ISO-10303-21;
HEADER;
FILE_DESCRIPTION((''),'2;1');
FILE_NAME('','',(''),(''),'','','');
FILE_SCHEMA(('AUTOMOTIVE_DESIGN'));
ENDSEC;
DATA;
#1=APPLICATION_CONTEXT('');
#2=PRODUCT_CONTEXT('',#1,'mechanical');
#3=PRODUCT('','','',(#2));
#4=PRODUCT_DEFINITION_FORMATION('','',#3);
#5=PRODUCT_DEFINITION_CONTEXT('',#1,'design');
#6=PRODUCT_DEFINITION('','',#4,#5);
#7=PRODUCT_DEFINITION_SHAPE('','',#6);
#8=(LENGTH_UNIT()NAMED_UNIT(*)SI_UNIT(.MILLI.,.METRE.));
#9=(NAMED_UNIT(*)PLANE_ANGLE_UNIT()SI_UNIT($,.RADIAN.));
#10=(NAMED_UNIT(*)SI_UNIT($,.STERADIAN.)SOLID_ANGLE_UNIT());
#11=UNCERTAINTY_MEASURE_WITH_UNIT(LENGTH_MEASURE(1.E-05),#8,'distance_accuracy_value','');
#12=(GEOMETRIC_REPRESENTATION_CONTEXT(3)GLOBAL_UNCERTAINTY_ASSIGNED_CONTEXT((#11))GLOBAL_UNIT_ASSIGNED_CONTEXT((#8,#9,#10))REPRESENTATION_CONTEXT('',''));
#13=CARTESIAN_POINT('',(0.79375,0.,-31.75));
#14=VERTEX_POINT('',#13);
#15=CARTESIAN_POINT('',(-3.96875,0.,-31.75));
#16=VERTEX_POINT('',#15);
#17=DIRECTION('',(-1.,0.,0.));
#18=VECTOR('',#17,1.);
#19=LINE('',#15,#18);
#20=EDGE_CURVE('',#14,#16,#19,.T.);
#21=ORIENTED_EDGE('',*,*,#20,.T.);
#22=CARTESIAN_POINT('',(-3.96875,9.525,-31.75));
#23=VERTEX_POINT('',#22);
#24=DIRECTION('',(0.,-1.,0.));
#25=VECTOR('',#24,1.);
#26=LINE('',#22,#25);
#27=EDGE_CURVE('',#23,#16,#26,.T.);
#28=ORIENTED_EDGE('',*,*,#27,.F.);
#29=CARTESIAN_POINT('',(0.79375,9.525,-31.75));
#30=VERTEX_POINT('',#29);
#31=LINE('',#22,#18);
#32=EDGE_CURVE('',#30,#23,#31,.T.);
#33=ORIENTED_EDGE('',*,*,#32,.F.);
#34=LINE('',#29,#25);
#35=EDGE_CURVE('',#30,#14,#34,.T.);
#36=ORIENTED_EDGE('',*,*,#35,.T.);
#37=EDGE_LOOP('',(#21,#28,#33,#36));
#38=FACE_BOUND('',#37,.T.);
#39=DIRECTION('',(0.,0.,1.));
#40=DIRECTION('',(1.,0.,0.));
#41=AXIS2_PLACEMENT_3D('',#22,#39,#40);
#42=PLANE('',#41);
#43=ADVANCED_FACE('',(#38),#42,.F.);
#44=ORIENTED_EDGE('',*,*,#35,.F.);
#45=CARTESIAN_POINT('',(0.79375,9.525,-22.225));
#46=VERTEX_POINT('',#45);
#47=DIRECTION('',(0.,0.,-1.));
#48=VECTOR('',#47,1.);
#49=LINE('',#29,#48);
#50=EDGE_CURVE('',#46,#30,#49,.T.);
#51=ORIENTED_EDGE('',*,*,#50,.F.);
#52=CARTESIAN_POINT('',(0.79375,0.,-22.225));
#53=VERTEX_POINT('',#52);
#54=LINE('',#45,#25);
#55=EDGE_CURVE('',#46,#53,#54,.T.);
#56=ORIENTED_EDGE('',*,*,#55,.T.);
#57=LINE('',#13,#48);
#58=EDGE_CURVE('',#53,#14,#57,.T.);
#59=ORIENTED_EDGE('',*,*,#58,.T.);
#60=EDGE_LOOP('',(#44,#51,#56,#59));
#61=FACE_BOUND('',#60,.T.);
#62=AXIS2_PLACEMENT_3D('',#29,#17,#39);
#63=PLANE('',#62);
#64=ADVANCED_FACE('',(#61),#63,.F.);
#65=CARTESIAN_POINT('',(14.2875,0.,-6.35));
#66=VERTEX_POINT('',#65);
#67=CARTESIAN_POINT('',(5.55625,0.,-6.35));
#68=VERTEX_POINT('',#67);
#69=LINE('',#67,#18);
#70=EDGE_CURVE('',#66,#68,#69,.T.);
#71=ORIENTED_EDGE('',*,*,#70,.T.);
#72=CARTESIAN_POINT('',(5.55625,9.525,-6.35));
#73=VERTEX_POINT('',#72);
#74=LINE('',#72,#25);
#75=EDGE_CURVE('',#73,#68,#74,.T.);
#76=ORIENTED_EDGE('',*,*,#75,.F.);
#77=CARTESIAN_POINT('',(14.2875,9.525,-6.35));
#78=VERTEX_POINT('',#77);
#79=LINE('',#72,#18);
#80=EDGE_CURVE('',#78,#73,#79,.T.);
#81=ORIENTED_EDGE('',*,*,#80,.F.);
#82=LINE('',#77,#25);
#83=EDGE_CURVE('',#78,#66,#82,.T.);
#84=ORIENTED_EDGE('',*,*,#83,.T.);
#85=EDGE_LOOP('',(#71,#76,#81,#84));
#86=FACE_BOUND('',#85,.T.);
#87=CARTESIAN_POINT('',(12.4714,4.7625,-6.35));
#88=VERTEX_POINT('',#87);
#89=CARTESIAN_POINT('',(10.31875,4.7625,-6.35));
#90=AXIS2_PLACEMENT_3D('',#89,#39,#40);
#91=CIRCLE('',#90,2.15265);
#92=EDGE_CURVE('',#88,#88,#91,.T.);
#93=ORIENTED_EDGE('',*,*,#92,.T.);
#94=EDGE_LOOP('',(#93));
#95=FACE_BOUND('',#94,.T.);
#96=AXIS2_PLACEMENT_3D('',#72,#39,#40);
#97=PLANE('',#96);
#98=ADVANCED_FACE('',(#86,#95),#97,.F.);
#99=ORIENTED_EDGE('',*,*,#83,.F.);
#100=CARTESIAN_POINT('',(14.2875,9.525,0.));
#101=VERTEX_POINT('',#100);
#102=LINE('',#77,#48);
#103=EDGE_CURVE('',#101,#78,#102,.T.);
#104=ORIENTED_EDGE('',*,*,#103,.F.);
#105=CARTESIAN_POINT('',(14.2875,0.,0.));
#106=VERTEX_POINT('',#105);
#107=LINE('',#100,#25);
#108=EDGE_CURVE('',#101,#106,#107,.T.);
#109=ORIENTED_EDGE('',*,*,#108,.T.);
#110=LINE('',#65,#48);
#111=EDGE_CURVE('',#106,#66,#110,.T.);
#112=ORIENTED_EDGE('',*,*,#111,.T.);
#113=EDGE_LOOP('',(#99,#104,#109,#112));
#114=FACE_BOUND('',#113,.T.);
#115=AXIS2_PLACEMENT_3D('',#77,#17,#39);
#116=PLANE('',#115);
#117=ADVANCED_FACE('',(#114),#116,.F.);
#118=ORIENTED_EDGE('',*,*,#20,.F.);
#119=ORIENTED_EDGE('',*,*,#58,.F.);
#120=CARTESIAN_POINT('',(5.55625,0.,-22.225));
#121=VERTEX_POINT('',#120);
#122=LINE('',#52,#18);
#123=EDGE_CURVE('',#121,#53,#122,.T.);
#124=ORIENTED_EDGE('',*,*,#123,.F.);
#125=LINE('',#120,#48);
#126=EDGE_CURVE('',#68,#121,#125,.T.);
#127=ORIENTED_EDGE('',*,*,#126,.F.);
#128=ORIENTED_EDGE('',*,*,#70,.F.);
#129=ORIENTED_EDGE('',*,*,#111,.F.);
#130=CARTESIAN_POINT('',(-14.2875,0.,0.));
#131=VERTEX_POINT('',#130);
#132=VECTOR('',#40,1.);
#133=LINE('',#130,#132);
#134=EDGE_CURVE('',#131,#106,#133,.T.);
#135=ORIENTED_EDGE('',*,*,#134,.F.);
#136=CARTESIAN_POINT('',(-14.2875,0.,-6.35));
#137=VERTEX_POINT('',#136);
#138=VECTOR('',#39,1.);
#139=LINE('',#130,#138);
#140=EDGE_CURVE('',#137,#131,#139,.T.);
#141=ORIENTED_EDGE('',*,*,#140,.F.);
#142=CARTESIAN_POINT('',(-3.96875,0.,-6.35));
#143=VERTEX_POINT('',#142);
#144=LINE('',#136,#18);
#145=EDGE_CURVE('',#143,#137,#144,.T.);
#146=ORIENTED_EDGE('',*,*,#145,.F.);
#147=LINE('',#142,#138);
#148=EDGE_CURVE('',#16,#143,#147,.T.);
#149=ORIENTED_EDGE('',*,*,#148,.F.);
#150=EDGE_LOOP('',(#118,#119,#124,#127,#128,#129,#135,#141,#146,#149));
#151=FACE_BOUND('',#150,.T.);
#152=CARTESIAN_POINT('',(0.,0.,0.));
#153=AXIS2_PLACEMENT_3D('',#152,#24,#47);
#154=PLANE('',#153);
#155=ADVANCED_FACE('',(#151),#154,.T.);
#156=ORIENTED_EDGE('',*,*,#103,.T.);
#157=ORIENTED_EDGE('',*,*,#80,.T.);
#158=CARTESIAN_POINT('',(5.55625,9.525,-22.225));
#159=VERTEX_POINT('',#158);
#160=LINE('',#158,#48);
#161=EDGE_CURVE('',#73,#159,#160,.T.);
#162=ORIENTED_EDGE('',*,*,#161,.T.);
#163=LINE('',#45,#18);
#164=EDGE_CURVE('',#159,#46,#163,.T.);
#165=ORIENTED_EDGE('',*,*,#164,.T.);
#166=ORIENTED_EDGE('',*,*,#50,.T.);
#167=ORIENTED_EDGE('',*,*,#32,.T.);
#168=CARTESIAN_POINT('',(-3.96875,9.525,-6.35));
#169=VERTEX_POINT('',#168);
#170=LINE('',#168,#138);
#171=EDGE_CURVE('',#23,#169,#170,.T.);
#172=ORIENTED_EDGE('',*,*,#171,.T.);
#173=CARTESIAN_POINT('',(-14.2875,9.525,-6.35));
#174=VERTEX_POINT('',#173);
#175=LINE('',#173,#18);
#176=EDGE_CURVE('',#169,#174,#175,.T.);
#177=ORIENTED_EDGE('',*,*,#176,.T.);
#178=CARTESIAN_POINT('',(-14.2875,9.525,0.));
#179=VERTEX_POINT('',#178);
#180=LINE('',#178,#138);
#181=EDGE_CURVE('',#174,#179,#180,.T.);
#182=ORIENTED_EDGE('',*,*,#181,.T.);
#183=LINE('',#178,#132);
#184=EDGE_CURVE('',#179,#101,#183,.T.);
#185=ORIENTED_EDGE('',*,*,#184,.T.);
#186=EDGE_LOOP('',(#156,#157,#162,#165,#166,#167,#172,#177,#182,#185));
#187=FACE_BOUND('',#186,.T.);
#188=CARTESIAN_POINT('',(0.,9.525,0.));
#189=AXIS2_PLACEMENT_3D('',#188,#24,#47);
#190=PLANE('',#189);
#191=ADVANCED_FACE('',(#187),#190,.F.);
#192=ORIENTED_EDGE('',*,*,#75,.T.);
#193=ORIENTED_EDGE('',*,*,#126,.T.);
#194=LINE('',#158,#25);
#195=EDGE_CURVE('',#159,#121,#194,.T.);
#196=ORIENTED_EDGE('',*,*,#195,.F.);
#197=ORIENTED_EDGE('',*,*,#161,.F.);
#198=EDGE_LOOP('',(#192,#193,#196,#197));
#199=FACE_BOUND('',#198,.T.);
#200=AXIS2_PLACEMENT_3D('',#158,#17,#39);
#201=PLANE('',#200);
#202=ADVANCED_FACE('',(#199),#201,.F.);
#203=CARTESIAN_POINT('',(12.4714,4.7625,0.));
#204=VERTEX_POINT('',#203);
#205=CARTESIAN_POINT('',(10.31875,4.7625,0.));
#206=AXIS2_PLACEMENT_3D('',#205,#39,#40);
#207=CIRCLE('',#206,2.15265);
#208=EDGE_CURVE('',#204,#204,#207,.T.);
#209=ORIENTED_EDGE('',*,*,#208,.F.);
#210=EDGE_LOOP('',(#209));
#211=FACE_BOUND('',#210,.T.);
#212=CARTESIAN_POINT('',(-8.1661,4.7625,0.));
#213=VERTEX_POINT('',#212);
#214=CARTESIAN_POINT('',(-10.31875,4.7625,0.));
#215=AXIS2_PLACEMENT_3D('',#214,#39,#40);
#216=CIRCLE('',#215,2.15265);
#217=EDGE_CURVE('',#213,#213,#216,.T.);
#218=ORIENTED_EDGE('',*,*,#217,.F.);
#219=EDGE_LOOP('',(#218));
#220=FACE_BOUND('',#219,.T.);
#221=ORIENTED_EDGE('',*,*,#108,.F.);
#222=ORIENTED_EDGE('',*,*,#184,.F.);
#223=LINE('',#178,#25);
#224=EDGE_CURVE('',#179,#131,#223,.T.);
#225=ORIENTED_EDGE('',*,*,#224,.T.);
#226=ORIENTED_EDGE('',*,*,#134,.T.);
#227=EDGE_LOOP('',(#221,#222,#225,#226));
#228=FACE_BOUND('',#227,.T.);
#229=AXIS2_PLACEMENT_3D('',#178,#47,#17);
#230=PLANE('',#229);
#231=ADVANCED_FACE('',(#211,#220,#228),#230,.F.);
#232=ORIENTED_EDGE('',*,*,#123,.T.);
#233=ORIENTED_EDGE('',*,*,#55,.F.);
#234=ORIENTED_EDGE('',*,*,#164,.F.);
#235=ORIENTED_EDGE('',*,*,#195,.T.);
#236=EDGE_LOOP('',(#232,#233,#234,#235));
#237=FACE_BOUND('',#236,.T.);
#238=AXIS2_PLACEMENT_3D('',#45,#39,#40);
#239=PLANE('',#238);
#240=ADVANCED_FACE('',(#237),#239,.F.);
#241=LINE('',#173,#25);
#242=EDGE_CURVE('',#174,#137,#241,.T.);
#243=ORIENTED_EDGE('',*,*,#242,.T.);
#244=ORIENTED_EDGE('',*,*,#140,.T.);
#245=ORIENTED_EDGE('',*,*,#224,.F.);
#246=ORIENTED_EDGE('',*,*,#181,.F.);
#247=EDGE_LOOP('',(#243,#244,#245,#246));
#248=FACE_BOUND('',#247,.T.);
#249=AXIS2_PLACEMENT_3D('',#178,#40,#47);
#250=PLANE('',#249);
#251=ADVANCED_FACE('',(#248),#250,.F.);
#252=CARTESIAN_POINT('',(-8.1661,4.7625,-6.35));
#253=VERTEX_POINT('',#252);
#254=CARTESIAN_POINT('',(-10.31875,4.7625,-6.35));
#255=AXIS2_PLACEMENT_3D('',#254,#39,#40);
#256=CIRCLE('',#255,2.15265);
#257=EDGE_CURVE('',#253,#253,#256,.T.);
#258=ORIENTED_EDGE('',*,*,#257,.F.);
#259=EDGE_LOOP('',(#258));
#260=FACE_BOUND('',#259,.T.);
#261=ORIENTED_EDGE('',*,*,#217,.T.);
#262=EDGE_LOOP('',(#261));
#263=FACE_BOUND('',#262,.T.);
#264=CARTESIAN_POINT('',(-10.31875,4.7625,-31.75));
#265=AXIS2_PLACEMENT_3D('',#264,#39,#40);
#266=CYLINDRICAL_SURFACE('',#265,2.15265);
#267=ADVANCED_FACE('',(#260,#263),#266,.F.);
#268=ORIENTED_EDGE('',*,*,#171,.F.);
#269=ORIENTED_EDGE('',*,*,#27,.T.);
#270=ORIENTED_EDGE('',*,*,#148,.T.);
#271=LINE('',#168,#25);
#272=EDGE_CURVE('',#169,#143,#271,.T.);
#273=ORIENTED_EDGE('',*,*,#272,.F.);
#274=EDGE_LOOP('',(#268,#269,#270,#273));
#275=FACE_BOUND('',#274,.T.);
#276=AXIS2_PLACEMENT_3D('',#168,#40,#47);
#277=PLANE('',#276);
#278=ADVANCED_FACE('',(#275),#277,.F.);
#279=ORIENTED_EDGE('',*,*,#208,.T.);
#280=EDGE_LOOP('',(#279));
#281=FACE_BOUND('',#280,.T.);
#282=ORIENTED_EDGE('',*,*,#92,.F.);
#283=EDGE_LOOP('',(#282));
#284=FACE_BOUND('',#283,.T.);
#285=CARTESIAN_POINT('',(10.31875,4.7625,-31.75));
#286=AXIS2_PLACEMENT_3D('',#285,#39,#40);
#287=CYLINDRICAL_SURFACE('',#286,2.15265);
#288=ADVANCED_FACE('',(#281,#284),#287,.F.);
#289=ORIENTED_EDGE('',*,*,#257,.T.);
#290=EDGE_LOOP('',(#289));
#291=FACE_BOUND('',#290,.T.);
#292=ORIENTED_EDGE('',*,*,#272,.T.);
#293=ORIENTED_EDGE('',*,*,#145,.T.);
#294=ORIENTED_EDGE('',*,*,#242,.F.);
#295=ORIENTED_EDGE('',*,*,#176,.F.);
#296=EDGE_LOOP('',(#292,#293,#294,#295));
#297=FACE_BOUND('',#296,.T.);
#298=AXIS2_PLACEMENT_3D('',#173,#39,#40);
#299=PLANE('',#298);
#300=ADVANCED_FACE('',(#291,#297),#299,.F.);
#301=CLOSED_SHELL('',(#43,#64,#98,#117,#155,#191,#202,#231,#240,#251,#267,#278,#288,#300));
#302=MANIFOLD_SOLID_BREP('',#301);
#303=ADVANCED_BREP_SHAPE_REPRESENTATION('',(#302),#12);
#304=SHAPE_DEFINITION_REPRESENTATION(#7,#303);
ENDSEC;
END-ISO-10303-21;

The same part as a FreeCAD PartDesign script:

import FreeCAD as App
import Part
import Sketcher
Q = App.Units.Quantity


def add_polygon(sketch, points):
    """Adds a closed chain of lines whose ends are joined by coincident constraints."""
    first, n = sketch.GeometryCount, len(points)
    for a, b in zip(points, points[1:] + points[:1]):
        sketch.addGeometry(Part.LineSegment(App.Vector(*a, 0), App.Vector(*b, 0)), False)
    for i in range(n):
        sketch.addConstraint(Sketcher.Constraint("Coincident", first + i, 2, first + (i + 1) % n, 1))

doc = App.newDocument("Part")
params = doc.addObject("Spreadsheet::Sheet", "Params")
for row, (alias, value) in enumerate([
    ("sketch1_height", "1 in"),
    ("sketch1_height2", "0.25 in"),
    ("sketch1_width", "1.125 in"),
    ("sketch1_width2", "0.34375 in"),
    ("sketch1_width3", "0.1875 in"),
    ("pad1_length", "0.375 in"),
], start=1):
    params.set(f"A{row}", alias)
    params.set(f"B{row}", "=" + value)
    params.setAlias(f"B{row}", alias)

body = doc.addObject("PartDesign::Body", "Body")

sketch1 = body.newObject("Sketcher::SketchObject", "Sketch")
sketch1.AttachmentSupport = (doc.getObject("XZ_Plane"), [""])
sketch1.MapMode = "FlatFace"
add_polygon(sketch1, [(-14.3, 0), (14.3, 0), (14.3, -6.3), (5.6, -6.3), (5.6, -22.2), (0.8, -22.2), (0.8, -31.8), (-4, -31.8), (-4, -6.3), (-14.3, -6.3)])
sketch1.addConstraint([
    Sketcher.Constraint("Horizontal", 0),
    Sketcher.Constraint("Vertical", 1),
    Sketcher.Constraint("Horizontal", 2),
    Sketcher.Constraint("Vertical", 3),
    Sketcher.Constraint("Horizontal", 4),
    Sketcher.Constraint("Vertical", 5),
    Sketcher.Constraint("Horizontal", 6),
    Sketcher.Constraint("Vertical", 7),
    Sketcher.Constraint("Horizontal", 8),
    Sketcher.Constraint("Vertical", 9),
    Sketcher.Constraint("Symmetric", 0, 2, 9, 2, -1, 1),
    Sketcher.Constraint("Horizontal", 2, 2, 7, 2),
    Sketcher.Constraint("Equal", 4, 6),
    Sketcher.Constraint("DistanceY", 7, 1, 7, 2, Q("1 in")),
    Sketcher.Constraint("DistanceY", 1, 2, 1, 1, Q("0.25 in")),
    Sketcher.Constraint("DistanceX", 0, 1, 0, 2, Q("1.125 in")),
    Sketcher.Constraint("DistanceX", 2, 2, 2, 1, Q("0.34375 in")),
    Sketcher.Constraint("DistanceX", 4, 2, 4, 1, Q("0.1875 in")),
    Sketcher.Constraint("DistanceY", 3, 2, 3, 1, Q("0.625 in")),
])
sketch1.setExpression("Constraints[23]", "Params.sketch1_height")
sketch1.setExpression("Constraints[24]", "Params.sketch1_height2")
sketch1.setExpression("Constraints[25]", "Params.sketch1_width")
sketch1.setExpression("Constraints[26]", "Params.sketch1_width2")
sketch1.setExpression("Constraints[27]", "Params.sketch1_width3")
pad1 = body.newObject("PartDesign::Pad", "Pad")
pad1.Profile = sketch1
pad1.setExpression("Length", "Params.pad1_length")
pad1.Reversed = True

sketch2 = body.newObject("Sketcher::SketchObject", "Sketch001")
sketch2.AttachmentSupport = (doc.getObject("XY_Plane"), [""])
sketch2.MapMode = "FlatFace"
sketch2.addGeometry([
    Part.Circle(App.Vector(-10.3, 4.8, 0), App.Vector(0, 0, 1), 2.2),
    Part.Circle(App.Vector(10.3, 4.8, 0), App.Vector(0, 0, 1), 2.2),
], False)
sketch2.addConstraint([
    Sketcher.Constraint("Equal", 0, 1),
    Sketcher.Constraint("Symmetric", 0, 3, 1, 3, -2),
    Sketcher.Constraint("Diameter", 0, Q("0.1695 in")),
    Sketcher.Constraint("DistanceX", 0, 3, -1, 1, Q("0.40625 in")),
    Sketcher.Constraint("DistanceY", -1, 1, 0, 3, Q("0.1875 in")),
])
pocket1 = body.newObject("PartDesign::Pocket", "Pocket")
pocket1.Profile = sketch2
pocket1.Type = "ThroughAll"

doc.recompute()
